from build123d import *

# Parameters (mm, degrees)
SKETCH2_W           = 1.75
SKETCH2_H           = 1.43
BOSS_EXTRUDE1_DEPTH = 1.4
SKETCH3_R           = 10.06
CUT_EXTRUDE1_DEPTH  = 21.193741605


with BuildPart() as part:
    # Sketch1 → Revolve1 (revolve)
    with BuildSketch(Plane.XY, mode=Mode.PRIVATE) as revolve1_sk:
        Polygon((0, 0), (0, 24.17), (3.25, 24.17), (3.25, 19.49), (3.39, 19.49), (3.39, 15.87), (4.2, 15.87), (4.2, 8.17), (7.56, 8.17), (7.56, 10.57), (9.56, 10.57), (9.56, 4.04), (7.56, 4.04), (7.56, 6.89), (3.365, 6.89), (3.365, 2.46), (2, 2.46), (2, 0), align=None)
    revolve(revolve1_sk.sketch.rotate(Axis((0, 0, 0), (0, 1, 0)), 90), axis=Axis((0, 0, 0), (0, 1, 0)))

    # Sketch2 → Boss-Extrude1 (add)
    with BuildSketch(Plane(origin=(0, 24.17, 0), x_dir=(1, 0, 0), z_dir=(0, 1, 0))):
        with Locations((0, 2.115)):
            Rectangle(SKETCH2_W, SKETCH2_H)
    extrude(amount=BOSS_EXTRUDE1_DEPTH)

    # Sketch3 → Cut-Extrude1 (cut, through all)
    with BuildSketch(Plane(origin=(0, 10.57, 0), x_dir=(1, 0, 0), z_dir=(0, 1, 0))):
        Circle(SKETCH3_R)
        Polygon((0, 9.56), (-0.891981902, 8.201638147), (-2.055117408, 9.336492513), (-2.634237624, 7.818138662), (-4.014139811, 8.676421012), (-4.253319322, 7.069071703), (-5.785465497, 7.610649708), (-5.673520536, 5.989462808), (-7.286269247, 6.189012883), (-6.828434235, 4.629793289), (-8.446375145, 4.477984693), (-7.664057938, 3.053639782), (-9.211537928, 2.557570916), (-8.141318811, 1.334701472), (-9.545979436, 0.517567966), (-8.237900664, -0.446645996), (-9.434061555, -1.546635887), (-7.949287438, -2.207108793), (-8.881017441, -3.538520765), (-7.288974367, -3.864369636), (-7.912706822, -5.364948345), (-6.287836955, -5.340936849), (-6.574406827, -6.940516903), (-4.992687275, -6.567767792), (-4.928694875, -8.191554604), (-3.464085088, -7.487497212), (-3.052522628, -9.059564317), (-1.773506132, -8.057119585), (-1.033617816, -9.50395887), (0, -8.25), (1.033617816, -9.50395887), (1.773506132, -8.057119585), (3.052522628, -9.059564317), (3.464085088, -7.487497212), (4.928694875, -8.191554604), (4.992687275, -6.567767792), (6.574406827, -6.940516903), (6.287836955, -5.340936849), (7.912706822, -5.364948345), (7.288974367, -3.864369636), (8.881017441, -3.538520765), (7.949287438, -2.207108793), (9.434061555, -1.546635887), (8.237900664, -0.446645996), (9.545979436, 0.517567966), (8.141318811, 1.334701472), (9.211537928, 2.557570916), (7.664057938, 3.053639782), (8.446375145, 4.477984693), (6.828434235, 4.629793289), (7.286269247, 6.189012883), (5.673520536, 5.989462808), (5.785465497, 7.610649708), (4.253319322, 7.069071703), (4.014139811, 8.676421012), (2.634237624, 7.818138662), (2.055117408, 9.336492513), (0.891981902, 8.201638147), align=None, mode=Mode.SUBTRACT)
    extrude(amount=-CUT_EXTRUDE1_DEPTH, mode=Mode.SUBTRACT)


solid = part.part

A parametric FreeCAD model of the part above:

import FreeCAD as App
import Part
import Sketcher

V = App.Vector


def add_polygon(sketch, points):
    """Adds a closed chain of lines whose ends are joined by coincident constraints."""
    first, n = sketch.GeometryCount, len(points)
    for a, b in zip(points, points[1:] + points[:1]):
        sketch.addGeometry(Part.LineSegment(App.Vector(*a, 0), App.Vector(*b, 0)), False)
    for i in range(n):
        sketch.addConstraint(Sketcher.Constraint("Coincident", first + i, 2, first + (i + 1) % n, 1))

doc = App.newDocument("Part")
body = doc.addObject("PartDesign::Body", "Body")

sketch1 = body.newObject("Sketcher::SketchObject", "Sketch")
sketch1.AttachmentSupport = (doc.getObject("XY_Plane"), [""])
sketch1.MapMode = "FlatFace"
add_polygon(sketch1, [(0, 24.17), (0, 0), (2, 0), (2, 2.46), (3.365, 2.46), (3.365, 6.89), (7.56, 6.89), (7.56, 4.04), (9.56, 4.04), (9.56, 10.57), (7.56, 10.57), (7.56, 8.17), (4.2, 8.17), (4.2, 15.87), (3.39, 15.87), (3.39, 19.49), (3.25, 19.49), (3.25, 24.17)])
sketch1.addConstraint([
    Sketcher.Constraint("Vertical", 0),
    Sketcher.Constraint("Horizontal", 1),
    Sketcher.Constraint("Vertical", 2),
    Sketcher.Constraint("Horizontal", 3),
    Sketcher.Constraint("Vertical", 4),
    Sketcher.Constraint("Horizontal", 5),
    Sketcher.Constraint("Vertical", 6),
    Sketcher.Constraint("Horizontal", 7),
    Sketcher.Constraint("Vertical", 8),
    Sketcher.Constraint("Horizontal", 9),
    Sketcher.Constraint("Vertical", 10),
    Sketcher.Constraint("Horizontal", 11),
    Sketcher.Constraint("Vertical", 12),
    Sketcher.Constraint("Horizontal", 13),
    Sketcher.Constraint("Vertical", 14),
    Sketcher.Constraint("Horizontal", 15),
    Sketcher.Constraint("Vertical", 16),
    Sketcher.Constraint("Horizontal", 17),
    Sketcher.Constraint("Coincident", 0, 2, -1, 1),
    Sketcher.Constraint("Vertical", 6, 2, 9, 2),
    Sketcher.Constraint("Equal", 1, 7),
    Sketcher.Constraint("DistanceX", 1, 1, 1, 2, 2.0),
    Sketcher.Constraint("DistanceY", 10, 2, 10, 1, 2.4),
    Sketcher.Constraint("DistanceY", 12, 1, 12, 2, 7.7),
    Sketcher.Constraint("DistanceX", 11, 2, 11, 1, 3.36),
    Sketcher.Constraint("DistanceX", 13, 2, 13, 1, 0.81),
    Sketcher.Constraint("DistanceX", 15, 2, 15, 1, 0.14),
    Sketcher.Constraint("DistanceX", 17, 2, 17, 1, 3.25),
    Sketcher.Constraint("DistanceY", 0, 2, 0, 1, 24.17),
    Sketcher.Constraint("DistanceY", 2, 1, 2, 2, 2.46),
    Sketcher.Constraint("DistanceY", 4, 1, 4, 2, 4.43),
    Sketcher.Constraint("DistanceY", 6, 2, 6, 1, 2.85),
    Sketcher.Constraint("DistanceY", 8, 1, 8, 2, 6.53),
    Sketcher.Constraint("DistanceY", 14, 1, 14, 2, 3.62),
    Sketcher.Constraint("DistanceX", 3, 1, 3, 2, 1.365),
])
revolution = body.newObject("PartDesign::Revolution", "Revolution")
revolution.Profile = sketch1
revolution.ReferenceAxis = (sketch1, ["V_Axis"])
revolution.Angle = 360

sketch2 = body.newObject("Sketcher::SketchObject", "Sketch001")
sketch2.AttachmentSupport = (doc.getObject("XZ_Plane"), [""])
sketch2.MapMode = "FlatFace"
sketch2.AttachmentOffset = App.Placement(V(0, 0, -24.17), App.Rotation())
add_polygon(sketch2, [(-0.875, -2.83), (-0.875, -1.4), (0.875, -1.4), (0.875, -2.83)])
sketch2.addConstraint([
    Sketcher.Constraint("Vertical", 0),
    Sketcher.Constraint("Horizontal", 1),
    Sketcher.Constraint("Vertical", 2),
    Sketcher.Constraint("Horizontal", 3),
    Sketcher.Constraint("DistanceX", 1, 1, 1, 2, 1.75),
    Sketcher.Constraint("DistanceY", 0, 1, 0, 2, 1.43),
    Sketcher.Constraint("DistanceY", 0, 2, -1, 1, 1.4),
    Sketcher.Constraint("DistanceX", 0, 2, -1, 1, 0.875),
])
pad1 = body.newObject("PartDesign::Pad", "Pad")
pad1.Profile = sketch2
pad1.Length = 1.4
pad1.Reversed = True

sketch3 = body.newObject("Sketcher::SketchObject", "Sketch002")
sketch3.AttachmentSupport = (doc.getObject("XZ_Plane"), [""])
sketch3.MapMode = "FlatFace"
sketch3.AttachmentOffset = App.Placement(V(0, 0, -10.57), App.Rotation())
sketch3.addGeometry(Part.Circle(V(0, 0, 0), V(0, 0, 1), 10.06), False)
add_polygon(sketch3, [(-0.891982, -8.201638), (0, -9.56), (0.891982, -8.201638), (2.055117, -9.336493), (2.634238, -7.818139), (4.01414, -8.676421), (4.253319, -7.069072), (5.785465, -7.61065), (5.673521, -5.989463), (7.286269, -6.189013), (6.828434, -4.629793), (8.446375, -4.477985), (7.664058, -3.05364), (9.211538, -2.557571), (8.141319, -1.334701), (9.545979, -0.517568), (8.237901, 0.446646), (9.434062, 1.546636), (7.949287, 2.207109), (8.881017, 3.538521), (7.288974, 3.86437), (7.912707, 5.364948), (6.287837, 5.340937), (6.574407, 6.940517), (4.992687, 6.567768), (4.928695, 8.191555), (3.464085, 7.487497), (3.052523, 9.059564), (1.773506, 8.05712), (1.033618, 9.503959), (0, 8.25), (-1.033618, 9.503959), (-1.773506, 8.05712), (-3.052523, 9.059564), (-3.464085, 7.487497), (-4.928695, 8.191555), (-4.992687, 6.567768), (-6.574407, 6.940517), (-6.287837, 5.340937), (-7.912707, 5.364948), (-7.288974, 3.86437), (-8.881017, 3.538521), (-7.949287, 2.207109), (-9.434062, 1.546636), (-8.237901, 0.446646), (-9.545979, -0.517568), (-8.141319, -1.334701), (-9.211538, -2.557571), (-7.664058, -3.05364), (-8.446375, -4.477985), (-6.828434, -4.629793), (-7.286269, -6.189013), (-5.673521, -5.989463), (-5.785465, -7.61065), (-4.253319, -7.069072), (-4.01414, -8.676421), (-2.634238, -7.818139), (-2.055117, -9.336493)])
sketch3.addConstraint([
    Sketcher.Constraint("Coincident", 0, 3, -1, 1),
    Sketcher.Constraint("Symmetric", 29, 2, 31, 2, -2),
    Sketcher.Constraint("Symmetric", 28, 2, 32, 2, -2),
    Sketcher.Constraint("Symmetric", 27, 2, 33, 2, -2),
    Sketcher.Constraint("Symmetric", 26, 2, 34, 2, -2),
    Sketcher.Constraint("Symmetric", 25, 2, 35, 2, -2),
    Sketcher.Constraint("Symmetric", 24, 2, 36, 2, -2),
    Sketcher.Constraint("Symmetric", 23, 2, 37, 2, -2),
    Sketcher.Constraint("Symmetric", 22, 2, 38, 2, -2),
    Sketcher.Constraint("Symmetric", 21, 2, 39, 2, -2),
    Sketcher.Constraint("Symmetric", 20, 2, 40, 2, -2),
    Sketcher.Constraint("Symmetric", 19, 2, 41, 2, -2),
    Sketcher.Constraint("Symmetric", 18, 2, 42, 2, -2),
    Sketcher.Constraint("Symmetric", 17, 2, 43, 2, -2),
    Sketcher.Constraint("Symmetric", 16, 2, 44, 2, -2),
    Sketcher.Constraint("Symmetric", 15, 2, 45, 2, -2),
    Sketcher.Constraint("Symmetric", 14, 2, 46, 2, -2),
    Sketcher.Constraint("Symmetric", 13, 2, 47, 2, -2),
    Sketcher.Constraint("Symmetric", 12, 2, 48, 2, -2),
    Sketcher.Constraint("Symmetric", 11, 2, 49, 2, -2),
    Sketcher.Constraint("Symmetric", 10, 2, 50, 2, -2),
    Sketcher.Constraint("Symmetric", 9, 2, 51, 2, -2),
    Sketcher.Constraint("Symmetric", 8, 2, 52, 2, -2),
    Sketcher.Constraint("Symmetric", 7, 2, 53, 2, -2),
    Sketcher.Constraint("Symmetric", 6, 2, 54, 2, -2),
    Sketcher.Constraint("Symmetric", 5, 2, 55, 2, -2),
    Sketcher.Constraint("Symmetric", 4, 2, 56, 2, -2),
    Sketcher.Constraint("Symmetric", 3, 2, 57, 2, -2),
    Sketcher.Constraint("Symmetric", 2, 2, 58, 2, -2),
    Sketcher.Constraint("PointOnObject", 1, 2, -2),
    Sketcher.Constraint("PointOnObject", 30, 2, -2),
    Sketcher.Constraint("Equal", 2, 3),
    Sketcher.Constraint("Equal", 3, 4),
    Sketcher.Constraint("Equal", 4, 5),
    Sketcher.Constraint("Equal", 5, 6),
    Sketcher.Constraint("Equal", 6, 7),
    Sketcher.Constraint("Equal", 7, 8),
    Sketcher.Constraint("Equal", 8, 9),
    Sketcher.Constraint("Equal", 9, 10),
    Sketcher.Constraint("Equal", 10, 11),
    Sketcher.Constraint("Equal", 11, 12),
    Sketcher.Constraint("Equal", 12, 13),
    Sketcher.Constraint("Equal", 13, 14),
    Sketcher.Constraint("Equal", 14, 15),
    Sketcher.Constraint("Equal", 15, 16),
    Sketcher.Constraint("Equal", 16, 17),
    Sketcher.Constraint("Equal", 17, 18),
    Sketcher.Constraint("Equal", 18, 19),
    Sketcher.Constraint("Equal", 19, 20),
    Sketcher.Constraint("Equal", 20, 21),
    Sketcher.Constraint("Equal", 21, 22),
    Sketcher.Constraint("Equal", 22, 23),
    Sketcher.Constraint("Equal", 23, 24),
    Sketcher.Constraint("Equal", 24, 25),
    Sketcher.Constraint("Equal", 25, 26),
    Sketcher.Constraint("Equal", 26, 27),
    Sketcher.Constraint("Equal", 27, 28),
    Sketcher.Constraint("Equal", 28, 29),
    Sketcher.Constraint("Equal", 29, 30),
    Sketcher.Constraint("Diameter", 0, 20.12),
    Sketcher.Constraint("DistanceY", 1, 2, -1, 1, 9.56),
    Sketcher.Constraint("DistanceY", -1, 1, 30, 2, 8.25),
    Sketcher.Constraint("DistanceY", 14, 2, -1, 1, 1.334701),
    Sketcher.Constraint("DistanceX", -1, 1, 16, 2, 8.237901),
    Sketcher.Constraint("DistanceY", 2, 2, 4, 2, 0.383499),
    Sketcher.Constraint("DistanceX", 3, 2, 6, 2, 2.198202),
    Sketcher.Constraint("DistanceX", 6, 2, 8, 2, 1.420201),
    Sketcher.Constraint("DistanceX", 14, 2, 19, 2, 0.739699),
    Sketcher.Constraint("DistanceY", 17, 2, 22, 2, 3.794301),
    Sketcher.Constraint("DistanceX", 23, 2, 21, 2, 1.3383),
    Sketcher.Constraint("DistanceY", 20, 2, 24, 2, 2.703398),
    Sketcher.Constraint("DistanceX", 28, 2, 23, 2, 4.800901),
    Sketcher.Constraint("DistanceX", 57, 2, 2, 2, 2.947099),
    Sketcher.Constraint("DistanceX", -1, 1, 2, 2, 0.891982),
    Sketcher.Constraint("DistanceY", 2, 2, -1, 1, 8.201638),
    Sketcher.Constraint("DistanceX", -1, 1, 5, 2, 4.01414),
    Sketcher.Constraint("DistanceY", 7, 2, -1, 1, 7.61065),
    Sketcher.Constraint("DistanceX", -1, 1, 9, 2, 7.286269),
    Sketcher.Constraint("DistanceY", 12, 2, -1, 1, 3.05364),
    Sketcher.Constraint("DistanceY", 13, 2, -1, 1, 2.557571),
    Sketcher.Constraint("DistanceX", -1, 1, 14, 2, 8.141319),
    Sketcher.Constraint("DistanceX", -1, 1, 15, 2, 9.545979),
    Sketcher.Constraint("DistanceX", -1, 1, 17, 2, 9.434062),
    Sketcher.Constraint("DistanceY", -1, 1, 18, 2, 2.207109),
    Sketcher.Constraint("DistanceY", -1, 1, 20, 2, 3.86437),
    Sketcher.Constraint("DistanceY", -1, 1, 21, 2, 5.364948),
    Sketcher.Constraint("DistanceY", -1, 1, 28, 2, 8.05712),
    Sketcher.Constraint("DistanceY", 9, 2, 10, 2, 1.55922),
    Sketcher.Constraint("DistanceX", 25, 2, 23, 2, 1.645712),
    Sketcher.Constraint("DistanceX", 26, 2, 25, 2, 1.46461),
])
pocket1 = body.newObject("PartDesign::Pocket", "Pocket")
pocket1.Profile = sketch3
pocket1.Type = "ThroughAll"
pocket1.Reversed = True

doc.recompute()
